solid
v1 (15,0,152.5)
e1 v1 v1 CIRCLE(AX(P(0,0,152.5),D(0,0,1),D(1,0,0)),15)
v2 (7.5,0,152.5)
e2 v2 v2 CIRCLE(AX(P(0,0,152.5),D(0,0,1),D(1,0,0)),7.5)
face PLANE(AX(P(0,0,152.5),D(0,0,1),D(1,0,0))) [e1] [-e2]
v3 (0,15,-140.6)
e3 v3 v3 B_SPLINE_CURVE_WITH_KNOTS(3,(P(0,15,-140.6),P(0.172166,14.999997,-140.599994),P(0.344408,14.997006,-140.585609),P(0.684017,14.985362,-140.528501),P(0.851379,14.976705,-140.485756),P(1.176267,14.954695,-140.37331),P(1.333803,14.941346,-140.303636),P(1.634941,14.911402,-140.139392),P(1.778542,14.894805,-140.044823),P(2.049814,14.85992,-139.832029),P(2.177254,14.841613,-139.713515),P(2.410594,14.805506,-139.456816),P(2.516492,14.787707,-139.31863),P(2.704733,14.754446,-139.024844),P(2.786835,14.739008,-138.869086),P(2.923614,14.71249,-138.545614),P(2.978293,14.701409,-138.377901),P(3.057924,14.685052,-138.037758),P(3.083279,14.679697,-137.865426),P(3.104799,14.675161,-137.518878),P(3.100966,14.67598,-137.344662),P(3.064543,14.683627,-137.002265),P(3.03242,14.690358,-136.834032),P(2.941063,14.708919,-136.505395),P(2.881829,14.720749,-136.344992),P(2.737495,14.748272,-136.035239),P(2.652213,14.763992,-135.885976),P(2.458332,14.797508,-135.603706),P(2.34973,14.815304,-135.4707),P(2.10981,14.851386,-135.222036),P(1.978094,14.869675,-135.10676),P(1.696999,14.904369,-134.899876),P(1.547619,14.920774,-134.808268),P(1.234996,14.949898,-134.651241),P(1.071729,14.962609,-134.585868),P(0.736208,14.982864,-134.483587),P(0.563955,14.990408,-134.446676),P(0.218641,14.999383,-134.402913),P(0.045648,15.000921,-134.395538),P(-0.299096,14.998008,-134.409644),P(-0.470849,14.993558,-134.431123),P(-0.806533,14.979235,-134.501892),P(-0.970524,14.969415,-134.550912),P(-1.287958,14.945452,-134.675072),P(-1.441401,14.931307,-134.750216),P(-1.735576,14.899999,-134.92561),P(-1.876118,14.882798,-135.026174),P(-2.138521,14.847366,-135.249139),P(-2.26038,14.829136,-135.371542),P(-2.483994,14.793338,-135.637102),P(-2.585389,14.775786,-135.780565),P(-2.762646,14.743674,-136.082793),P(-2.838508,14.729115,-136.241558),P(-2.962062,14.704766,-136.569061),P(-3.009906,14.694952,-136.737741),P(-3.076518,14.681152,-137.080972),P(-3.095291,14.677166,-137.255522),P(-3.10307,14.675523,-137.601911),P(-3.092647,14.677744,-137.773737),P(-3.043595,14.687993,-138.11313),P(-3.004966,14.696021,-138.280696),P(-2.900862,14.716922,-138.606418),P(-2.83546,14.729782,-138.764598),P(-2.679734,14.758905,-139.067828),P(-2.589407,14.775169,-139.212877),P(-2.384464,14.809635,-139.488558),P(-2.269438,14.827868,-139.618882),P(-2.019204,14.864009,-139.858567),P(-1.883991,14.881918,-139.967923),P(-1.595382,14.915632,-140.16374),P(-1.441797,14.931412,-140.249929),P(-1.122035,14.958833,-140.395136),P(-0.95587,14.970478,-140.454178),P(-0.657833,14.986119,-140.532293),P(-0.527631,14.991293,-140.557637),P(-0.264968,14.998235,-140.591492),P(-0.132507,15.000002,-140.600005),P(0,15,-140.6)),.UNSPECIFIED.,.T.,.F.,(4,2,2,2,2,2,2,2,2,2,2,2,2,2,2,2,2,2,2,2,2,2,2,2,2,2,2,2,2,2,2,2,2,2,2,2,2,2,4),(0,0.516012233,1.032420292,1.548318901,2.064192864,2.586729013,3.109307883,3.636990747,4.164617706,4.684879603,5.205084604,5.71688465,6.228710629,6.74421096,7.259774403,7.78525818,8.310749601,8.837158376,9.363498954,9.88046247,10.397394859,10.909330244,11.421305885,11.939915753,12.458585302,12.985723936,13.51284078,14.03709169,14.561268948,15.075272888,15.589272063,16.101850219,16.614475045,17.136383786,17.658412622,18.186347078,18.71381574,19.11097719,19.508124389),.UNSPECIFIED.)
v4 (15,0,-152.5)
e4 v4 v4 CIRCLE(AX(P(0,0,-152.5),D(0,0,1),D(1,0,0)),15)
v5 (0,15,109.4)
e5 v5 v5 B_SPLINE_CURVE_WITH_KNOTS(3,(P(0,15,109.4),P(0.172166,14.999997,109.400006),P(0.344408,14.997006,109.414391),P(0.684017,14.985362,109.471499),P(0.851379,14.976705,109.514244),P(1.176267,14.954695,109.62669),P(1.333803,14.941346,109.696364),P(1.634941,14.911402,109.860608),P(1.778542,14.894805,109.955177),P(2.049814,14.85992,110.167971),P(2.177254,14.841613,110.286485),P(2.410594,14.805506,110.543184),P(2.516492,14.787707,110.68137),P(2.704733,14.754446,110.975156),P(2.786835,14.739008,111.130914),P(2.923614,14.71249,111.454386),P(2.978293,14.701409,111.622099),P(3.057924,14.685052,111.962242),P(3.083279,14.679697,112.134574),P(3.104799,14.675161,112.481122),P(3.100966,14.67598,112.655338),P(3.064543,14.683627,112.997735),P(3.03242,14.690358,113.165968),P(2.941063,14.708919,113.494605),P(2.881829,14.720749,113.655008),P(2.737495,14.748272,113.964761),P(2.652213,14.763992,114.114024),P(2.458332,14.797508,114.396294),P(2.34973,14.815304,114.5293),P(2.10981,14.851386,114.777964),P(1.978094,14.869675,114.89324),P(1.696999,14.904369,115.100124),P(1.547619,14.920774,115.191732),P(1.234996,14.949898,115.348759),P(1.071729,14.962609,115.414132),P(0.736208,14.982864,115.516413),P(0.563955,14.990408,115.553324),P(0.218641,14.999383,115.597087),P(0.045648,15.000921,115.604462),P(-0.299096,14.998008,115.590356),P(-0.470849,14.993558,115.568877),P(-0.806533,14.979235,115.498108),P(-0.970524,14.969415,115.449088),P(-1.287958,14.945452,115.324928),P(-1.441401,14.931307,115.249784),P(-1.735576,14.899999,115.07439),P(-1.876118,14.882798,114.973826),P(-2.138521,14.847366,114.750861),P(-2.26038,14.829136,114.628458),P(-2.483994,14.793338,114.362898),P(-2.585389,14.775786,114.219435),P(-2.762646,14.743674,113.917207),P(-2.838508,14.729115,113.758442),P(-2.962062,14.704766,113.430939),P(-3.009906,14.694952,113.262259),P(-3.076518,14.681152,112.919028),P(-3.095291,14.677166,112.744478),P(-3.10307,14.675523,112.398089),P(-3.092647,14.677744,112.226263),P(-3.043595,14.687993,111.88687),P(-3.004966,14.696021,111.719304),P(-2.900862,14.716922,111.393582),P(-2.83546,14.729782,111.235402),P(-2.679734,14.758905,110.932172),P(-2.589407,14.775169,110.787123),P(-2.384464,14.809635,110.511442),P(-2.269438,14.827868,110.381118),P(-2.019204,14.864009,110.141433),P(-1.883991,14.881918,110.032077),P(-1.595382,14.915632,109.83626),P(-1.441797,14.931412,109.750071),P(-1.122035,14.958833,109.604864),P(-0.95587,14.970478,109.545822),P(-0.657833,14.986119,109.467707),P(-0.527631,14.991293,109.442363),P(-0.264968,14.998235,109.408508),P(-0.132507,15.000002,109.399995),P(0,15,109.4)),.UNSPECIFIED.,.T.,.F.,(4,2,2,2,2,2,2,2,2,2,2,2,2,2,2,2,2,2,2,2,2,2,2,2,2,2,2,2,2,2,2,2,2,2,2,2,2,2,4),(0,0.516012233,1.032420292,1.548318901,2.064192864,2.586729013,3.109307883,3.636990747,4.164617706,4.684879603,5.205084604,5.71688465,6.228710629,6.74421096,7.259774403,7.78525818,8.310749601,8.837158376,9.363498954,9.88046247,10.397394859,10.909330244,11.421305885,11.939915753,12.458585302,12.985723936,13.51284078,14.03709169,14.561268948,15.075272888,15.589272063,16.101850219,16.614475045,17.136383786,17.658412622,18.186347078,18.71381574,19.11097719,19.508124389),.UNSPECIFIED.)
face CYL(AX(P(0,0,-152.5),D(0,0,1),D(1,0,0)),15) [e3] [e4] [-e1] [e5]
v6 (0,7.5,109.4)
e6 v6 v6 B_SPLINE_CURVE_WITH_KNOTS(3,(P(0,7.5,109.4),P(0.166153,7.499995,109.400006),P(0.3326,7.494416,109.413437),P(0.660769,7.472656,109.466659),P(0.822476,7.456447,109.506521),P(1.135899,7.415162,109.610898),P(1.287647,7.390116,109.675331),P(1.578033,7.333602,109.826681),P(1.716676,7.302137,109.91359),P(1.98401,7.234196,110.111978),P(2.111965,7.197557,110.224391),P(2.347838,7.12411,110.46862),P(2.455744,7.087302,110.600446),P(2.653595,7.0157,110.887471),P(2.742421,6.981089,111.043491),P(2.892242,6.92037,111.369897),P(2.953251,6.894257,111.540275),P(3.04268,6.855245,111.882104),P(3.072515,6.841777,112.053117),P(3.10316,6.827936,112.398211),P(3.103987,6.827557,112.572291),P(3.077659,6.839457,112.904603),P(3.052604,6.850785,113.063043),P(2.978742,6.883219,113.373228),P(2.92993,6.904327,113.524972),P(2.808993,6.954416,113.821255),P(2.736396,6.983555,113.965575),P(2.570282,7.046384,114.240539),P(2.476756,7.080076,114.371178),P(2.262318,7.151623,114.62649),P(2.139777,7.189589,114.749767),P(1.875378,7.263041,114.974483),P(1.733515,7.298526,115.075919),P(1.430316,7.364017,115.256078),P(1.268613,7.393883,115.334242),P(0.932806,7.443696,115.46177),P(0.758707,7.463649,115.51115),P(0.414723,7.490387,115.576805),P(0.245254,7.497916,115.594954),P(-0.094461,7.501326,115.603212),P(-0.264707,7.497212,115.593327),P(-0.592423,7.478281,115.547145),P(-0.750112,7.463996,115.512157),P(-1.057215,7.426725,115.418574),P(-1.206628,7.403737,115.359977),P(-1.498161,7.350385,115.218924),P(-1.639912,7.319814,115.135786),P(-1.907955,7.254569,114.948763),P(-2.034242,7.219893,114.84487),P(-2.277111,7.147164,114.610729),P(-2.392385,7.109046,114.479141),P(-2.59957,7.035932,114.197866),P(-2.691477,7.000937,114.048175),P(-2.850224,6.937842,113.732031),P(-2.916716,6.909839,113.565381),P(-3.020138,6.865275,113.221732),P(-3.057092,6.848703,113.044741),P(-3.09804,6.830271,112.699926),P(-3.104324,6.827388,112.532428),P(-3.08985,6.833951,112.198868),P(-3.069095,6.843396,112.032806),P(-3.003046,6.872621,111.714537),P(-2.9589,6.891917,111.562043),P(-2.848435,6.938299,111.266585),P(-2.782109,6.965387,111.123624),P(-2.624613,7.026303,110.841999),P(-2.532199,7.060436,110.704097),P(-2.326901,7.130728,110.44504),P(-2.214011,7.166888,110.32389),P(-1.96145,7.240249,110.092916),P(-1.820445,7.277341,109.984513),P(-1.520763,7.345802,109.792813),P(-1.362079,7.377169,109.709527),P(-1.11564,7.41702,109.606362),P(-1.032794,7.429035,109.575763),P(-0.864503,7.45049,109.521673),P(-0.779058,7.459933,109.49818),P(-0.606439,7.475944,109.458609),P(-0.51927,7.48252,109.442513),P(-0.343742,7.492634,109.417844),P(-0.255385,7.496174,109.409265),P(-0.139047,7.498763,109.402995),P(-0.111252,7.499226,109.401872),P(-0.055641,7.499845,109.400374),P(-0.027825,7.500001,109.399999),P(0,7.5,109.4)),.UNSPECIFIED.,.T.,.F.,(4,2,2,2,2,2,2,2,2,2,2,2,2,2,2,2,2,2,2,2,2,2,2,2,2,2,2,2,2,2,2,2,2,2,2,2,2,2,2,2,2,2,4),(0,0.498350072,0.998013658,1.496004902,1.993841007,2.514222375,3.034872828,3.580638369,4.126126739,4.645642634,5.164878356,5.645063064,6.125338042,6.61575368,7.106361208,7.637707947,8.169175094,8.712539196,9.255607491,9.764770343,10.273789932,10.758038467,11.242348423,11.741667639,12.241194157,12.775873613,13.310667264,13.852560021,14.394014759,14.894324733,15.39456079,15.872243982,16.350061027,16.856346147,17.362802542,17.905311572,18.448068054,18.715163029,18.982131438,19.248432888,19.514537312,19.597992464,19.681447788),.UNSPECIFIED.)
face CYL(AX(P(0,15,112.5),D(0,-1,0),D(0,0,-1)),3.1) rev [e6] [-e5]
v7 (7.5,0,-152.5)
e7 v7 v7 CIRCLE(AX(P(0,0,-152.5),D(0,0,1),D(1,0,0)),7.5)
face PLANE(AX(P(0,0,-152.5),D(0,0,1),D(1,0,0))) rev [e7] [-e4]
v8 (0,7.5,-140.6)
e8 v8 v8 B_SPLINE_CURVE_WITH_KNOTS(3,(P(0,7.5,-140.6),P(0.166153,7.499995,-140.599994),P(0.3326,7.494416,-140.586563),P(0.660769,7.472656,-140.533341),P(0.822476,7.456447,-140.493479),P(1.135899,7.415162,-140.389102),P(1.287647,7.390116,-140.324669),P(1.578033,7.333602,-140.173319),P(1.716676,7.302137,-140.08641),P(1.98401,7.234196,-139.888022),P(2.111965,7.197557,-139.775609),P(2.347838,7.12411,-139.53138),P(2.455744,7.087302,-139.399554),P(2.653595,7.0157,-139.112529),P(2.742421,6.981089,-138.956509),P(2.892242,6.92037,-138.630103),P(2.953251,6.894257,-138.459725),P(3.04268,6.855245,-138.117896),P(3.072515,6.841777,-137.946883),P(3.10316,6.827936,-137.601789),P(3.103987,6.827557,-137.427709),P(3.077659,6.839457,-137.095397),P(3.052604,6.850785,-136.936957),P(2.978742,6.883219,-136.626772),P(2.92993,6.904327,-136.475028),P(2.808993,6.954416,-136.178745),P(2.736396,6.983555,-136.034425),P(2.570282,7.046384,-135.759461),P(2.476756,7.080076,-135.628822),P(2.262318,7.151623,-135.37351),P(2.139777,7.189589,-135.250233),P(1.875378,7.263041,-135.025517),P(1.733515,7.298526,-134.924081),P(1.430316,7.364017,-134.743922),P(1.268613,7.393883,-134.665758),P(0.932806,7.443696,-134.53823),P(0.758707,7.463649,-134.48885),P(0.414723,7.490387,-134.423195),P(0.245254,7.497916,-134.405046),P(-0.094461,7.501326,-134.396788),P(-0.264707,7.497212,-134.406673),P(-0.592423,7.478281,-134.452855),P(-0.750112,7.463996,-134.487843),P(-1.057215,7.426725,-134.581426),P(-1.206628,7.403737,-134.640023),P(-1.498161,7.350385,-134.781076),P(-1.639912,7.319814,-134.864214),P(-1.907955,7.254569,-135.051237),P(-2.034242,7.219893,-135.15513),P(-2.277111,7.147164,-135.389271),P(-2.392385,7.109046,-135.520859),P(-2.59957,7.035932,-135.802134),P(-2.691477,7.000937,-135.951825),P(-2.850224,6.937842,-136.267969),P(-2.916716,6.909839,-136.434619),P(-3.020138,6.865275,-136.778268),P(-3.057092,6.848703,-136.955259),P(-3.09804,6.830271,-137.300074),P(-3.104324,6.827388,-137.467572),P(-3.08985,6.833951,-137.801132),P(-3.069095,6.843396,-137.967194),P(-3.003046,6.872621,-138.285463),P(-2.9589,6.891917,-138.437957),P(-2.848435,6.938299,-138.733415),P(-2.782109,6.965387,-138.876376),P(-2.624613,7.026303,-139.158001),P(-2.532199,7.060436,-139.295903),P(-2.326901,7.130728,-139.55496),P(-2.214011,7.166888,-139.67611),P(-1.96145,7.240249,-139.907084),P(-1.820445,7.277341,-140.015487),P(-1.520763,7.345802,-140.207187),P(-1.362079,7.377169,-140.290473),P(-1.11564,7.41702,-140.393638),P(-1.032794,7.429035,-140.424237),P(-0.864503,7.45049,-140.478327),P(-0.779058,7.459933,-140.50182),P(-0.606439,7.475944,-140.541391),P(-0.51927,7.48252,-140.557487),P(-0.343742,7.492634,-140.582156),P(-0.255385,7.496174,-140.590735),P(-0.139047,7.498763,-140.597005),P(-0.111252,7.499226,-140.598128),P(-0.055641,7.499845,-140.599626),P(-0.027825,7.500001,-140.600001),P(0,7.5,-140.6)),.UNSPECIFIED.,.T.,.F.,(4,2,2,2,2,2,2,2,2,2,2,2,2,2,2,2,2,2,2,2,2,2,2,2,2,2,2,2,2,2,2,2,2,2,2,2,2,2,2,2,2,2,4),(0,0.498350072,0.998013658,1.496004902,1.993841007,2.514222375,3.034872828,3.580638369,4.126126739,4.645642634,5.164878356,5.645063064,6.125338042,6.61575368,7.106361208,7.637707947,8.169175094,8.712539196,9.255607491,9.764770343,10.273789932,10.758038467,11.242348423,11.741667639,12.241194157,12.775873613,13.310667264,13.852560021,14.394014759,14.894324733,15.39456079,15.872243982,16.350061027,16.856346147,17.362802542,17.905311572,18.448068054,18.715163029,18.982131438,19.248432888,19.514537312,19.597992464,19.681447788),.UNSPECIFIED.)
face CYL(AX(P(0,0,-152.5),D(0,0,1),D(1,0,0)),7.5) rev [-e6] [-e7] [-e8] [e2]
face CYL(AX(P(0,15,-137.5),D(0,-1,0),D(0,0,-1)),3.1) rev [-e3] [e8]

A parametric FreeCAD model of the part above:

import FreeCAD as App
import Part
import Sketcher
Q = App.Units.Quantity

doc = App.newDocument("Part")
body = doc.addObject("PartDesign::Body", "Body")

sketch1 = body.newObject("Sketcher::SketchObject", "Sketch")
sketch1.AttachmentSupport = (doc.getObject("XY_Plane"), [""])
sketch1.MapMode = "FlatFace"
sketch1.addGeometry(Part.Circle(App.Vector(0, 0, 0), App.Vector(0, 0, 1), 15), False)
sketch1.addGeometry(Part.Circle(App.Vector(0, 0, 0), App.Vector(0, 0, 1), 7.5), False)
sketch1.addConstraint(Sketcher.Constraint("Coincident", 0, 3, -1, 1))
sketch1.addConstraint(Sketcher.Constraint("Coincident", 1, 3, -1, 1))
sketch1.addConstraint(Sketcher.Constraint("Diameter", 0, Q("30 mm")))
sketch1.addConstraint(Sketcher.Constraint("Diameter", 1, Q("15 mm")))
pad1 = body.newObject("PartDesign::Pad", "Pad")
pad1.Profile = sketch1
pad1.Type = "TwoLengths"
pad1.Length = 152.5
pad1.Length2 = 152.5

sketch2 = body.newObject("Sketcher::SketchObject", "Sketch001")
sketch2.AttachmentSupport = (doc.getObject("XZ_Plane"), [""])
sketch2.MapMode = "FlatFace"
sketch2.addGeometry(Part.Circle(App.Vector(0, 112.5, 0), App.Vector(0, 0, 1), 3.1), False)
sketch2.addConstraint(Sketcher.Constraint("PointOnObject", 0, 3, -2))
sketch2.addConstraint(Sketcher.Constraint("Diameter", 0, Q("6.2 mm")))
sketch2.addConstraint(Sketcher.Constraint("DistanceY", -1, 1, 0, 3, Q("112.5 mm")))
pocket1 = body.newObject("PartDesign::Pocket", "Pocket")
pocket1.Profile = sketch2
pocket1.Type = "ThroughAll"

sketch3 = body.newObject("Sketcher::SketchObject", "Sketch002")
sketch3.AttachmentSupport = (doc.getObject("XZ_Plane"), [""])
sketch3.MapMode = "FlatFace"
sketch3.addGeometry(Part.Circle(App.Vector(0, -137.5, 0), App.Vector(0, 0, 1), 3.1), False)
sketch3.addConstraint(Sketcher.Constraint("PointOnObject", 0, 3, -2))
sketch3.addConstraint(Sketcher.Constraint("Diameter", 0, Q("6.2 mm")))
sketch3.addConstraint(Sketcher.Constraint("DistanceY", 0, 3, -1, 1, Q("137.5 mm")))
pocket2 = body.newObject("PartDesign::Pocket", "Pocket001")
pocket2.Profile = sketch3
pocket2.Type = "ThroughAll"

doc.recompute()
